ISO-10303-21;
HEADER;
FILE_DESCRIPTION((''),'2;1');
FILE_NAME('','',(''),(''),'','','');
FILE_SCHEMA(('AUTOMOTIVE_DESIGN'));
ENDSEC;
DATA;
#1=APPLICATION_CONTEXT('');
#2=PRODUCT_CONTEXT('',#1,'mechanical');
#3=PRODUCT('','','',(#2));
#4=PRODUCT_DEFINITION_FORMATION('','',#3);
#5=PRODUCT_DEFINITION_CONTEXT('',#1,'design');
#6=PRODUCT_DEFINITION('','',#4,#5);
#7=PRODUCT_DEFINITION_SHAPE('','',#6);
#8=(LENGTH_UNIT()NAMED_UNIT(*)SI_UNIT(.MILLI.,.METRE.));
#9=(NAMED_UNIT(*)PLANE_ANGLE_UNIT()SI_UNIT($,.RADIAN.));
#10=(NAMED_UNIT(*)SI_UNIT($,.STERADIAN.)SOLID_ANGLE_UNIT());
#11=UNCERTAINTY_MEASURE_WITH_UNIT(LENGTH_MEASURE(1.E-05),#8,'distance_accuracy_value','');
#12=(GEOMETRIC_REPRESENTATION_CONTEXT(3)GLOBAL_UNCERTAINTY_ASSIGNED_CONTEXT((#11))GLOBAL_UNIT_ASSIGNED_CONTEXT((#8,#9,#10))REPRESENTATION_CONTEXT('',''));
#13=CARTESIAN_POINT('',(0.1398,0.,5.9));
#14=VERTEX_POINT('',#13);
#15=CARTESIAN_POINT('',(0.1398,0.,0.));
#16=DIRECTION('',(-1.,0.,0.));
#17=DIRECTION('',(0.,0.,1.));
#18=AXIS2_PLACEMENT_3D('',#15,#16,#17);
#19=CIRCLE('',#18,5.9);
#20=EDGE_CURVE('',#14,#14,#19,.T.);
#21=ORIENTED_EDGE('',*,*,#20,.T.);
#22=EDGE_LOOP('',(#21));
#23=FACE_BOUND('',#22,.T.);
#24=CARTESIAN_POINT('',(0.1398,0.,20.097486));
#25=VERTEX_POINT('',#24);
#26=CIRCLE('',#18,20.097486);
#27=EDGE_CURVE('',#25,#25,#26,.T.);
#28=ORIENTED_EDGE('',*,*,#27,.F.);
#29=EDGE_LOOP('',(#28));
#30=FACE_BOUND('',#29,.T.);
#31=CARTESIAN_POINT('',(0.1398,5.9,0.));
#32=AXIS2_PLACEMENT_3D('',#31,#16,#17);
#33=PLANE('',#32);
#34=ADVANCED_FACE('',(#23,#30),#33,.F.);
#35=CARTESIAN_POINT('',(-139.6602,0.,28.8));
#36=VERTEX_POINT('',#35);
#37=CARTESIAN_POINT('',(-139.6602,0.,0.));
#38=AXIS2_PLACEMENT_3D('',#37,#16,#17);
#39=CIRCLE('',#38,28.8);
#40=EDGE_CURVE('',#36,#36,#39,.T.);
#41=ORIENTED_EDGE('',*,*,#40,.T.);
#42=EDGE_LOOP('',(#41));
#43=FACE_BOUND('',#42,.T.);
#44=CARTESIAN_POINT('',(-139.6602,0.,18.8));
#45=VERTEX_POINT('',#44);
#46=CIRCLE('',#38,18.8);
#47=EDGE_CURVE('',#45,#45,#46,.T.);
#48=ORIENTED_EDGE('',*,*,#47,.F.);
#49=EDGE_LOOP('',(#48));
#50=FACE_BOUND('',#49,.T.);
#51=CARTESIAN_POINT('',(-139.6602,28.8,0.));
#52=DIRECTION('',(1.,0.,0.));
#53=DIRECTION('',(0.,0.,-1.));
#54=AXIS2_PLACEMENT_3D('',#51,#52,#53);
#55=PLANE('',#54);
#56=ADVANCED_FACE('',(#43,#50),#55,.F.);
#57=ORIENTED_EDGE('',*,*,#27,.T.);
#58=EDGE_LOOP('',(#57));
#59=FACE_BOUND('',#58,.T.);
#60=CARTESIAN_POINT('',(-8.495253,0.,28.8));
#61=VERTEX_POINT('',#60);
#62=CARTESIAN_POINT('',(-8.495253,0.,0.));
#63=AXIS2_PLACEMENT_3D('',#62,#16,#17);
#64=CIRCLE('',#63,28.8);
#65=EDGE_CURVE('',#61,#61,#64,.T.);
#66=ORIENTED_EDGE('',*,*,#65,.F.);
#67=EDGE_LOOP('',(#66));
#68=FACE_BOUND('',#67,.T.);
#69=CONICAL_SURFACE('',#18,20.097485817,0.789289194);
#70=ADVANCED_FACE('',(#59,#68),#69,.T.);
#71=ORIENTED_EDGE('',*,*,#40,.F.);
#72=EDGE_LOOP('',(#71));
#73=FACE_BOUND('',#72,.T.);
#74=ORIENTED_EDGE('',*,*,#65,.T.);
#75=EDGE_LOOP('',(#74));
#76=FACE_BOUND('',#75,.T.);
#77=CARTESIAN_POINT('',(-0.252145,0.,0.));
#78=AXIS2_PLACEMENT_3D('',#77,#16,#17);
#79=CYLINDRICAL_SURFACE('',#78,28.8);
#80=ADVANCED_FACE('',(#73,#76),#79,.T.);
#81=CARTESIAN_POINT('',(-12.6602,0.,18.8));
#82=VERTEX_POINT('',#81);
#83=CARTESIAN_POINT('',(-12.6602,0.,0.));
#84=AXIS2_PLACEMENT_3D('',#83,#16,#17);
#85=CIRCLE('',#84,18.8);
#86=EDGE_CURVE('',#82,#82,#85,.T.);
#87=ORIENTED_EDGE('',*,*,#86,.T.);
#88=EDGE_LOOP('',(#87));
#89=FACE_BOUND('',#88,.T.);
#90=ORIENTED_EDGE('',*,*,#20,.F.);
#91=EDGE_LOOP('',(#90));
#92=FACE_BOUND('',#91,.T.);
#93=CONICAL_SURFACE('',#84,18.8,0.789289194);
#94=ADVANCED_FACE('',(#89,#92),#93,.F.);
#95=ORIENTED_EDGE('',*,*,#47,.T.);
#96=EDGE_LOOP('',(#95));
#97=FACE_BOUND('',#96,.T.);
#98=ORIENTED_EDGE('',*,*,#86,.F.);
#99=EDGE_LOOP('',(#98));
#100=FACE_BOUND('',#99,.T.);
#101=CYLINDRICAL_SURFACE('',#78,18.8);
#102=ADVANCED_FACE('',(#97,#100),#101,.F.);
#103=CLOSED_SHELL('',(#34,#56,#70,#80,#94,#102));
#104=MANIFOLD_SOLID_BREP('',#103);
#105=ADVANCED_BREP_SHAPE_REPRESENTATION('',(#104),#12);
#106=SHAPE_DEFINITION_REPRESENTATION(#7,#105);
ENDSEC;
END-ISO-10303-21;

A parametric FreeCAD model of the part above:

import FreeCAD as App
import Part
import Sketcher

V = App.Vector


def add_polygon(sketch, points):
    """Adds a closed chain of lines whose ends are joined by coincident constraints."""
    first, n = sketch.GeometryCount, len(points)
    for a, b in zip(points, points[1:] + points[:1]):
        sketch.addGeometry(Part.LineSegment(App.Vector(*a, 0), App.Vector(*b, 0)), False)
    for i in range(n):
        sketch.addConstraint(Sketcher.Constraint("Coincident", first + i, 2, first + (i + 1) % n, 1))

doc = App.newDocument("Part")
body = doc.addObject("PartDesign::Body", "Body")

sketch1 = doc.addObject("Sketcher::SketchObject", "Sketch")
body.addObject(sketch1)
sketch1.AttachmentSupport = (doc.XY_Plane, [""])
sketch1.MapMode = "FlatFace"
add_polygon(sketch1, [(-140, 19), (-13, 19), (0, 6), (0, 20), (-8, 29), (-140, 29)])
sketch1.addConstraint(Sketcher.Constraint("Horizontal", 0))
sketch1.addConstraint(Sketcher.Constraint("Vertical", 2))
sketch1.addConstraint(Sketcher.Constraint("Horizontal", 4))
sketch1.addConstraint(Sketcher.Constraint("Vertical", 5))
sketch1.addConstraint(Sketcher.Constraint("Parallel", 1, 3))
sketch1.addConstraint(Sketcher.Constraint("DistanceX", 0, 1, 0, 2, 127.0))
sketch1.addConstraint(Sketcher.Constraint("DistanceY", 5, 2, 5, 1, 10.0))
sketch1.addConstraint(Sketcher.Constraint("DistanceY", -1, 1, 0, 2, 18.8))
sketch1.addConstraint(Sketcher.Constraint("DistanceY", -1, 1, 1, 2, 5.9))
sketch1.addConstraint(Sketcher.Constraint("DistanceX", 0, 2, 1, 2, 12.8))
sketch1.addConstraint(Sketcher.Constraint("DistanceX", 0, 2, -1, 1, 12.6602))
sketch1.addConstraint(Sketcher.Constraint("DistanceX", 4, 2, 4, 1, 131.164947))
revolution = doc.addObject("PartDesign::Revolution", "Revolution")
body.addObject(revolution)
revolution.Profile = sketch1
revolution.ReferenceAxis = (sketch1, ["H_Axis"])
revolution.Angle = 360

doc.recompute()
